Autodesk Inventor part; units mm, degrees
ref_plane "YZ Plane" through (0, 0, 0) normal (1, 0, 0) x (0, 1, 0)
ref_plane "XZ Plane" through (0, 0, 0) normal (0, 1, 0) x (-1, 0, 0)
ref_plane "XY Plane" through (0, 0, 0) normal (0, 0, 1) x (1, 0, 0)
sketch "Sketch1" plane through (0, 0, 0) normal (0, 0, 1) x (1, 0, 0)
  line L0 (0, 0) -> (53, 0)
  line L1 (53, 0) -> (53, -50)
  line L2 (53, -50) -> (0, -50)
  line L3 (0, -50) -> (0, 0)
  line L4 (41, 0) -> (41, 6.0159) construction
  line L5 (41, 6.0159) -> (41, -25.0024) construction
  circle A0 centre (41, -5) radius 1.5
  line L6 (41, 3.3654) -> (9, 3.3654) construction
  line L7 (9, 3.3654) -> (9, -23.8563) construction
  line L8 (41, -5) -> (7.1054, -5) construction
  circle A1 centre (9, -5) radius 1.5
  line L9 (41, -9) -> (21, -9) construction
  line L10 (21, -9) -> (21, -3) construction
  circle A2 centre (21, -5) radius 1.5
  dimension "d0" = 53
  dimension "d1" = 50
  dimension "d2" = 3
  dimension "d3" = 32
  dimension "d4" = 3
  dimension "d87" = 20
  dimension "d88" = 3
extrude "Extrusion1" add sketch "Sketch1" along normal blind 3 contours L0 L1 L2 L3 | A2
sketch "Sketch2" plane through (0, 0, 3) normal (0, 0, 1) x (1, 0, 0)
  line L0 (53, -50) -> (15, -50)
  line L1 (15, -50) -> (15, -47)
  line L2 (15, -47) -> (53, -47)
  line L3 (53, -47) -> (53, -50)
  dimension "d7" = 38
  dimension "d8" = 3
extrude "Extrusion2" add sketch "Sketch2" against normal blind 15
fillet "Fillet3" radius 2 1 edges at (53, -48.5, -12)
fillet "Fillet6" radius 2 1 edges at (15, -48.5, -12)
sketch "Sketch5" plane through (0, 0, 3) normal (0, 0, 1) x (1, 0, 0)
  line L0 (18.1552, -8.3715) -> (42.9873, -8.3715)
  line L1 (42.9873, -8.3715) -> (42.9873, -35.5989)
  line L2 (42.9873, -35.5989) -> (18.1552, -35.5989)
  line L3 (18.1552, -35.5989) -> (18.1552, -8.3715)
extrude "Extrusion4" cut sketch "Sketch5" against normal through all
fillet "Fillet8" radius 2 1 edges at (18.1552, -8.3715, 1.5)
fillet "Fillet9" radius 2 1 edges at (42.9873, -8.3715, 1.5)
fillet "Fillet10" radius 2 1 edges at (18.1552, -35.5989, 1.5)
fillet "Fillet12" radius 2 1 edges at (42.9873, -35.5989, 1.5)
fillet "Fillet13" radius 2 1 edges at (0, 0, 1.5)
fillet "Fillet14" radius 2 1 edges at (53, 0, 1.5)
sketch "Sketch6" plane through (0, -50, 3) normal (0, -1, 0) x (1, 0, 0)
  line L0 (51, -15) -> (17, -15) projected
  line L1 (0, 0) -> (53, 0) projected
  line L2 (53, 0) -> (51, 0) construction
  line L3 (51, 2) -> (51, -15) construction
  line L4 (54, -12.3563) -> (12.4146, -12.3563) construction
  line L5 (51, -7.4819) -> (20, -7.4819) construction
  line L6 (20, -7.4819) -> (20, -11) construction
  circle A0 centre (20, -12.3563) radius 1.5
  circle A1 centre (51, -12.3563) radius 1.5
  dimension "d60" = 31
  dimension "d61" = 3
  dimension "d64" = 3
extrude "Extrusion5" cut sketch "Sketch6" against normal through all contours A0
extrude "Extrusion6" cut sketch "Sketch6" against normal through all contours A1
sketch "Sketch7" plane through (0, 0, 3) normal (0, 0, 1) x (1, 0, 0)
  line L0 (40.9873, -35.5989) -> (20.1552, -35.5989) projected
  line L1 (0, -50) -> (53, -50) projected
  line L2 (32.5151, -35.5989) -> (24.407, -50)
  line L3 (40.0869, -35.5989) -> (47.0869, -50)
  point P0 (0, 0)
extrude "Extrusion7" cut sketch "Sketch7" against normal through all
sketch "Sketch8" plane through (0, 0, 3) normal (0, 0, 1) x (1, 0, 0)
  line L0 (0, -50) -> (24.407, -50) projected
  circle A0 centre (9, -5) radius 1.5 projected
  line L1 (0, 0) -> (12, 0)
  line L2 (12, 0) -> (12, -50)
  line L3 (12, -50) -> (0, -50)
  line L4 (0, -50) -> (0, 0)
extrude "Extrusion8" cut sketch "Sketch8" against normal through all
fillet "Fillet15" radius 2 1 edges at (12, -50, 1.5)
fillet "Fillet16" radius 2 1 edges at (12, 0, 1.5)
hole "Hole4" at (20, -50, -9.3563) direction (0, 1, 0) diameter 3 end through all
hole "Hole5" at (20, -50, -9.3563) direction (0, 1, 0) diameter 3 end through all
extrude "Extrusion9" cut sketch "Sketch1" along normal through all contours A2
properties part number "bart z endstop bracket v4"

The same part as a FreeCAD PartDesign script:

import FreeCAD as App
import Part
import Sketcher
Q = App.Units.Quantity


def edges_at(feature, points):
    """Names of the edges that pass closest to the given points."""
    edges = feature.Shape.Edges
    near = lambda p: min(range(len(edges)), key=lambda i: edges[i].distToShape(Part.Vertex(*p))[0])
    return sorted({f"Edge{near(p) + 1}" for p in points})

doc = App.newDocument("Part")
body = doc.addObject("PartDesign::Body", "Body")

sketch1 = body.newObject("Sketcher::SketchObject", "Sketch")
sketch1.AttachmentSupport = (doc.getObject("XY_Plane"), [""])
sketch1.MapMode = "FlatFace"
sketch1.addGeometry([
    Part.LineSegment(App.Vector(53, 0, 0), App.Vector(0, 0, 0)),
    Part.LineSegment(App.Vector(0, 0, 0), App.Vector(0, -50, 0)),
    Part.LineSegment(App.Vector(0, -50, 0), App.Vector(53, -50, 0)),
    Part.LineSegment(App.Vector(53, -50, 0), App.Vector(53, 0, 0)),
    Part.Circle(App.Vector(9, -5, 0), App.Vector(0, 0, 1), 1.5),
    Part.Circle(App.Vector(41, -5, 0), App.Vector(0, 0, 1), 1.5),
], False)
sketch1.addConstraint([
    Sketcher.Constraint("Coincident", 0, 2, 1, 1),
    Sketcher.Constraint("Coincident", 1, 2, 2, 1),
    Sketcher.Constraint("Coincident", 2, 2, 3, 1),
    Sketcher.Constraint("Coincident", 3, 2, 0, 1),
    Sketcher.Constraint("Horizontal", 0),
    Sketcher.Constraint("Vertical", 1),
    Sketcher.Constraint("Horizontal", 2),
    Sketcher.Constraint("Vertical", 3),
    Sketcher.Constraint("Coincident", 0, 2, -1, 1),
    Sketcher.Constraint("Equal", 4, 5),
    Sketcher.Constraint("Horizontal", 4, 3, 5, 3),
    Sketcher.Constraint("Diameter", 4, 3.0),
    Sketcher.Constraint("DistanceX", 0, 2, 0, 1, 53.0),
    Sketcher.Constraint("DistanceY", 1, 2, 1, 1, 50.0),
    Sketcher.Constraint("DistanceX", 4, 3, 5, 3, 32.0),
    Sketcher.Constraint("DistanceX", -1, 1, 4, 3, 9.0),
    Sketcher.Constraint("DistanceY", 4, 3, -1, 1, 5.0),
])
pad1 = body.newObject("PartDesign::Pad", "Pad")
pad1.Profile = sketch1
pad1.Length = 3

sketch2 = body.newObject("Sketcher::SketchObject", "Sketch001")
sketch2.AttachmentSupport = (doc.getObject("XY_Plane"), [""])
sketch2.MapMode = "FlatFace"
sketch2.AttachmentOffset = App.Placement(App.Vector(0, 0, 3), App.Rotation())
sketch2.addGeometry([
    Part.LineSegment(App.Vector(15, -50, 0), App.Vector(53, -50, 0)),
    Part.LineSegment(App.Vector(53, -50, 0), App.Vector(53, -47, 0)),
    Part.LineSegment(App.Vector(53, -47, 0), App.Vector(15, -47, 0)),
    Part.LineSegment(App.Vector(15, -47, 0), App.Vector(15, -50, 0)),
], False)
sketch2.addConstraint([
    Sketcher.Constraint("Coincident", 0, 2, 1, 1),
    Sketcher.Constraint("Coincident", 1, 2, 2, 1),
    Sketcher.Constraint("Coincident", 2, 2, 3, 1),
    Sketcher.Constraint("Coincident", 3, 2, 0, 1),
    Sketcher.Constraint("Horizontal", 0),
    Sketcher.Constraint("Vertical", 1),
    Sketcher.Constraint("Horizontal", 2),
    Sketcher.Constraint("Vertical", 3),
    Sketcher.Constraint("DistanceX", 0, 1, 0, 2, 38.0),
    Sketcher.Constraint("DistanceY", 1, 1, 1, 2, 3.0),
    Sketcher.Constraint("DistanceX", -1, 1, 0, 2, 53.0),
    Sketcher.Constraint("DistanceY", 0, 2, -1, 1, 50.0),
])
pad2 = body.newObject("PartDesign::Pad", "Pad001")
pad2.Profile = sketch2
pad2.Length = 15
pad2.Reversed = True
doc.recompute()

fillet = body.newObject("PartDesign::Fillet", "Fillet")
fillet.Base = (pad2, edges_at(pad2, [(53, -48.5, -12)]))
fillet.Radius = 2
doc.recompute()

fillet2 = body.newObject("PartDesign::Fillet", "Fillet001")
fillet2.Base = (fillet, edges_at(fillet, [(15, -48.5, -12)]))
fillet2.Radius = 2

sketch3 = body.newObject("Sketcher::SketchObject", "Sketch002")
sketch3.AttachmentSupport = (doc.getObject("XY_Plane"), [""])
sketch3.MapMode = "FlatFace"
sketch3.AttachmentOffset = App.Placement(App.Vector(0, 0, 3), App.Rotation())
sketch3.addGeometry([
    Part.LineSegment(App.Vector(43, -8, 0), App.Vector(18, -8, 0)),
    Part.LineSegment(App.Vector(18, -8, 0), App.Vector(18, -36, 0)),
    Part.LineSegment(App.Vector(18, -36, 0), App.Vector(43, -36, 0)),
    Part.LineSegment(App.Vector(43, -36, 0), App.Vector(43, -8, 0)),
], False)
sketch3.addConstraint([
    Sketcher.Constraint("Coincident", 0, 2, 1, 1),
    Sketcher.Constraint("Coincident", 1, 2, 2, 1),
    Sketcher.Constraint("Coincident", 2, 2, 3, 1),
    Sketcher.Constraint("Coincident", 3, 2, 0, 1),
    Sketcher.Constraint("Horizontal", 0),
    Sketcher.Constraint("Vertical", 1),
    Sketcher.Constraint("Horizontal", 2),
    Sketcher.Constraint("Vertical", 3),
    Sketcher.Constraint("DistanceX", 0, 2, 0, 1, 24.832),
    Sketcher.Constraint("DistanceY", 1, 2, 1, 1, 27.2274),
    Sketcher.Constraint("DistanceY", 1, 2, -1, 1, 35.599),
    Sketcher.Constraint("DistanceX", -1, 1, 0, 2, 18.1552),
])
pocket1 = body.newObject("PartDesign::Pocket", "Pocket")
pocket1.Profile = sketch3
pocket1.Type = "ThroughAll"
doc.recompute()

fillet3 = body.newObject("PartDesign::Fillet", "Fillet002")
fillet3.Base = (pocket1, edges_at(pocket1, [(18.155, -8.371, 1.5)]))
fillet3.Radius = 2
doc.recompute()

fillet4 = body.newObject("PartDesign::Fillet", "Fillet003")
fillet4.Base = (fillet3, edges_at(fillet3, [(42.987, -8.371, 1.5)]))
fillet4.Radius = 2
doc.recompute()

fillet5 = body.newObject("PartDesign::Fillet", "Fillet004")
fillet5.Base = (fillet4, edges_at(fillet4, [(18.155, -35.599, 1.5)]))
fillet5.Radius = 2
doc.recompute()

fillet6 = body.newObject("PartDesign::Fillet", "Fillet005")
fillet6.Base = (fillet5, edges_at(fillet5, [(42.987, -35.599, 1.5)]))
fillet6.Radius = 2
doc.recompute()

fillet7 = body.newObject("PartDesign::Fillet", "Fillet006")
fillet7.Base = (fillet6, edges_at(fillet6, [(0, 0, 1.5)]))
fillet7.Radius = 2
doc.recompute()

fillet8 = body.newObject("PartDesign::Fillet", "Fillet007")
fillet8.Base = (fillet7, edges_at(fillet7, [(53, 0, 1.5)]))
fillet8.Radius = 2

sketch4 = body.newObject("Sketcher::SketchObject", "Sketch003")
sketch4.AttachmentSupport = (doc.getObject("XZ_Plane"), [""])
sketch4.MapMode = "FlatFace"
sketch4.AttachmentOffset = App.Placement(App.Vector(0, 0, 50), App.Rotation())
sketch4.addGeometry(Part.Circle(App.Vector(20, -9.4, 0), App.Vector(0, 0, 1), 1.5), False)
sketch4.addConstraint([
    Sketcher.Constraint("Diameter", 0, 3.0),
    Sketcher.Constraint("DistanceX", -1, 1, 0, 3, 20.0),
    Sketcher.Constraint("DistanceY", 0, 3, -1, 1, 9.3563),
])
pocket2 = body.newObject("PartDesign::Pocket", "Pocket001")
pocket2.Profile = sketch4
pocket2.Type = "ThroughAll"

sketch5 = body.newObject("Sketcher::SketchObject", "Sketch004")
sketch5.AttachmentSupport = (doc.getObject("XZ_Plane"), [""])
sketch5.MapMode = "FlatFace"
sketch5.AttachmentOffset = App.Placement(App.Vector(0, 0, 50), App.Rotation())
sketch5.addGeometry(Part.Circle(App.Vector(51, -9.4, 0), App.Vector(0, 0, 1), 1.5), False)
sketch5.addConstraint([
    Sketcher.Constraint("Diameter", 0, 3.0),
    Sketcher.Constraint("DistanceX", -1, 1, 0, 3, 51.0),
    Sketcher.Constraint("DistanceY", 0, 3, -1, 1, 9.3563),
])
pocket3 = body.newObject("PartDesign::Pocket", "Pocket002")
pocket3.Profile = sketch5
pocket3.Type = "ThroughAll"

sketch6 = body.newObject("Sketcher::SketchObject", "Sketch005")
sketch6.AttachmentSupport = (doc.getObject("XY_Plane"), [""])
sketch6.MapMode = "FlatFace"
sketch6.AttachmentOffset = App.Placement(App.Vector(0, 0, 3), App.Rotation())
sketch6.addGeometry([
    Part.LineSegment(App.Vector(47, -50, 0), App.Vector(40, -36, 0)),
    Part.LineSegment(App.Vector(40, -36, 0), App.Vector(33, -36, 0)),
    Part.LineSegment(App.Vector(33, -36, 0), App.Vector(24, -50, 0)),
    Part.LineSegment(App.Vector(24, -50, 0), App.Vector(47, -50, 0)),
], False)
sketch6.addConstraint([
    Sketcher.Constraint("Coincident", 0, 2, 1, 1),
    Sketcher.Constraint("Coincident", 1, 2, 2, 1),
    Sketcher.Constraint("Coincident", 2, 2, 3, 1),
    Sketcher.Constraint("Coincident", 3, 2, 0, 1),
    Sketcher.Constraint("Horizontal", 1),
    Sketcher.Constraint("Horizontal", 3),
    Sketcher.Constraint("DistanceY", 2, 2, -1, 1, 50.0),
    Sketcher.Constraint("DistanceX", 0, 2, 3, 2, 7.0),
    Sketcher.Constraint("DistanceX", 3, 1, 3, 2, 22.68),
    Sketcher.Constraint("Angle", 2, Q("-119.3804 deg")),
    Sketcher.Constraint("DistanceX", 1, 2, 1, 1, 7.5718),
    Sketcher.Constraint("DistanceX", -1, 1, 0, 2, 40.087),
])
pocket4 = body.newObject("PartDesign::Pocket", "Pocket003")
pocket4.Profile = sketch6
pocket4.Type = "ThroughAll"

sketch7 = body.newObject("Sketcher::SketchObject", "Sketch006")
sketch7.AttachmentSupport = (doc.getObject("XY_Plane"), [""])
sketch7.MapMode = "FlatFace"
sketch7.AttachmentOffset = App.Placement(App.Vector(0, 0, 3), App.Rotation())
sketch7.addGeometry([
    Part.LineSegment(App.Vector(0, 0, 0), App.Vector(0, -50, 0)),
    Part.LineSegment(App.Vector(0, -50, 0), App.Vector(12, -50, 0)),
    Part.LineSegment(App.Vector(12, -50, 0), App.Vector(12, 0, 0)),
    Part.LineSegment(App.Vector(12, 0, 0), App.Vector(0, 0, 0)),
    Part.Circle(App.Vector(9, -5, 0), App.Vector(0, 0, 1), 1.5),
], False)
sketch7.addConstraint([
    Sketcher.Constraint("Coincident", 0, 2, 1, 1),
    Sketcher.Constraint("Coincident", 1, 2, 2, 1),
    Sketcher.Constraint("Coincident", 2, 2, 3, 1),
    Sketcher.Constraint("Coincident", 3, 2, 0, 1),
    Sketcher.Constraint("Vertical", 0),
    Sketcher.Constraint("Horizontal", 1),
    Sketcher.Constraint("Vertical", 2),
    Sketcher.Constraint("Horizontal", 3),
    Sketcher.Constraint("Coincident", 3, 2, -1, 1),
    Sketcher.Constraint("Diameter", 4, 3.0),
    Sketcher.Constraint("DistanceX", 1, 1, 1, 2, 12.0),
    Sketcher.Constraint("DistanceY", 0, 2, 0, 1, 50.0),
    Sketcher.Constraint("DistanceX", -1, 1, 4, 3, 9.0),
    Sketcher.Constraint("DistanceY", 4, 3, -1, 1, 5.0),
])
pocket5 = body.newObject("PartDesign::Pocket", "Pocket004")
pocket5.Profile = sketch7
pocket5.Type = "ThroughAll"
doc.recompute()

fillet9 = body.newObject("PartDesign::Fillet", "Fillet008")
fillet9.Base = (pocket5, edges_at(pocket5, [(12, -50, 1.5)]))
fillet9.Radius = 2
doc.recompute()

fillet10 = body.newObject("PartDesign::Fillet", "Fillet009")
fillet10.Base = (fillet9, edges_at(fillet9, [(12, 0, 1.5)]))
fillet10.Radius = 2

sketch8 = body.newObject("Sketcher::SketchObject", "Sketch007")
sketch8.AttachmentSupport = (doc.getObject("XZ_Plane"), [""])
sketch8.MapMode = "FlatFace"
sketch8.AttachmentOffset = App.Placement(App.Vector(0, 0, 50), App.Rotation())
sketch8.addGeometry(Part.Circle(App.Vector(20, -9.4, 0), App.Vector(0, 0, 1), 1.5), False)
sketch8.addConstraint([
    Sketcher.Constraint("Diameter", 0, 3.0),
    Sketcher.Constraint("DistanceX", -1, 1, 0, 3, 20.0),
    Sketcher.Constraint("DistanceY", 0, 3, -1, 1, 9.3563),
])
doc.recompute()
hole = body.newObject("PartDesign::Hole", "Hole")
hole.Profile = sketch8
hole.ThreadType = "None"
hole.Diameter = 3
hole.DepthType = "ThroughAll"

sketch9 = body.newObject("Sketcher::SketchObject", "Sketch008")
sketch9.AttachmentSupport = (doc.getObject("XZ_Plane"), [""])
sketch9.MapMode = "FlatFace"
sketch9.AttachmentOffset = App.Placement(App.Vector(0, 0, 50), App.Rotation())
sketch9.addGeometry(Part.Circle(App.Vector(20, -9.4, 0), App.Vector(0, 0, 1), 1.5), False)
sketch9.addConstraint([
    Sketcher.Constraint("Diameter", 0, 3.0),
    Sketcher.Constraint("DistanceX", -1, 1, 0, 3, 20.0),
    Sketcher.Constraint("DistanceY", 0, 3, -1, 1, 9.3563),
])
doc.recompute()
hole2 = body.newObject("PartDesign::Hole", "Hole001")
hole2.Profile = sketch9
hole2.ThreadType = "None"
hole2.Diameter = 3
hole2.DepthType = "ThroughAll"

sketch10 = body.newObject("Sketcher::SketchObject", "Sketch009")
sketch10.AttachmentSupport = (doc.getObject("XY_Plane"), [""])
sketch10.MapMode = "FlatFace"
sketch10.addGeometry(Part.Circle(App.Vector(21, -5, 0), App.Vector(0, 0, 1), 1.5), False)
sketch10.addConstraint([
    Sketcher.Constraint("Diameter", 0, 3.0),
    Sketcher.Constraint("DistanceX", -1, 1, 0, 3, 21.0),
    Sketcher.Constraint("DistanceY", 0, 3, -1, 1, 5.0),
])
pocket6 = body.newObject("PartDesign::Pocket", "Pocket005")
pocket6.Profile = sketch10
pocket6.Type = "ThroughAll"
pocket6.Reversed = True

doc.recompute()
